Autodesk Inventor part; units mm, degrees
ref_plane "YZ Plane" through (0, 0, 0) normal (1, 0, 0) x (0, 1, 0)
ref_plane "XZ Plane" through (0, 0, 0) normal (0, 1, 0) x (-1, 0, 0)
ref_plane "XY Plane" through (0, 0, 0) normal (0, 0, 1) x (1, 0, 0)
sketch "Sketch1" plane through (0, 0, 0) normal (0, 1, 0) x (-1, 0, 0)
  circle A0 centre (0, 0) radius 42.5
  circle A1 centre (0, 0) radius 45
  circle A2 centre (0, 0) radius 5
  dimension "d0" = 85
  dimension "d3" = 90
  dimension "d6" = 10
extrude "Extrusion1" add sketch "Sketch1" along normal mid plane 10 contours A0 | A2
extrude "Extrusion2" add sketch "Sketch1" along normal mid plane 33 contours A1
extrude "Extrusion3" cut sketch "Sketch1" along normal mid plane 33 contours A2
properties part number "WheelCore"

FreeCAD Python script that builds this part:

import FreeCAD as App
import Part
import Sketcher

V = App.Vector

doc = App.newDocument("Part")
body = doc.addObject("PartDesign::Body", "Body")

sketch1 = doc.addObject("Sketcher::SketchObject", "Sketch")
body.addObject(sketch1)
sketch1.AttachmentSupport = (doc.XZ_Plane, [""])
sketch1.MapMode = "FlatFace"
sketch1.addGeometry(Part.Circle(V(0, 0, 0), V(0, 0, 1), 42), False)
sketch1.addConstraint(Sketcher.Constraint("Coincident", 0, 3, -1, 1))
sketch1.addConstraint(Sketcher.Constraint("Diameter", 0, 85.0))
pad1 = doc.addObject("PartDesign::Pad", "Pad")
body.addObject(pad1)
pad1.Profile = sketch1
pad1.Length = 10
pad1.Midplane = True

sketch2 = doc.addObject("Sketcher::SketchObject", "Sketch001")
body.addObject(sketch2)
sketch2.AttachmentSupport = (doc.XZ_Plane, [""])
sketch2.MapMode = "FlatFace"
sketch2.addGeometry(Part.Circle(V(0, 0, 0), V(0, 0, 1), 45), False)
sketch2.addGeometry(Part.Circle(V(0, 0, 0), V(0, 0, 1), 42), False)
sketch2.addConstraint(Sketcher.Constraint("Coincident", 0, 3, -1, 1))
sketch2.addConstraint(Sketcher.Constraint("Coincident", 1, 3, -1, 1))
sketch2.addConstraint(Sketcher.Constraint("Diameter", 0, 90.0))
sketch2.addConstraint(Sketcher.Constraint("Diameter", 1, 85.0))
pad2 = doc.addObject("PartDesign::Pad", "Pad001")
body.addObject(pad2)
pad2.Profile = sketch2
pad2.Length = 33
pad2.Midplane = True

sketch3 = doc.addObject("Sketcher::SketchObject", "Sketch002")
body.addObject(sketch3)
sketch3.AttachmentSupport = (doc.XZ_Plane, [""])
sketch3.MapMode = "FlatFace"
sketch3.addGeometry(Part.Circle(V(0, 0, 0), V(0, 0, 1), 5), False)
sketch3.addConstraint(Sketcher.Constraint("Coincident", 0, 3, -1, 1))
sketch3.addConstraint(Sketcher.Constraint("Diameter", 0, 10.0))
pocket1 = doc.addObject("PartDesign::Pocket", "Pocket")
body.addObject(pocket1)
pocket1.Profile = sketch3
pocket1.Length = 33
pocket1.Midplane = True

doc.recompute()
